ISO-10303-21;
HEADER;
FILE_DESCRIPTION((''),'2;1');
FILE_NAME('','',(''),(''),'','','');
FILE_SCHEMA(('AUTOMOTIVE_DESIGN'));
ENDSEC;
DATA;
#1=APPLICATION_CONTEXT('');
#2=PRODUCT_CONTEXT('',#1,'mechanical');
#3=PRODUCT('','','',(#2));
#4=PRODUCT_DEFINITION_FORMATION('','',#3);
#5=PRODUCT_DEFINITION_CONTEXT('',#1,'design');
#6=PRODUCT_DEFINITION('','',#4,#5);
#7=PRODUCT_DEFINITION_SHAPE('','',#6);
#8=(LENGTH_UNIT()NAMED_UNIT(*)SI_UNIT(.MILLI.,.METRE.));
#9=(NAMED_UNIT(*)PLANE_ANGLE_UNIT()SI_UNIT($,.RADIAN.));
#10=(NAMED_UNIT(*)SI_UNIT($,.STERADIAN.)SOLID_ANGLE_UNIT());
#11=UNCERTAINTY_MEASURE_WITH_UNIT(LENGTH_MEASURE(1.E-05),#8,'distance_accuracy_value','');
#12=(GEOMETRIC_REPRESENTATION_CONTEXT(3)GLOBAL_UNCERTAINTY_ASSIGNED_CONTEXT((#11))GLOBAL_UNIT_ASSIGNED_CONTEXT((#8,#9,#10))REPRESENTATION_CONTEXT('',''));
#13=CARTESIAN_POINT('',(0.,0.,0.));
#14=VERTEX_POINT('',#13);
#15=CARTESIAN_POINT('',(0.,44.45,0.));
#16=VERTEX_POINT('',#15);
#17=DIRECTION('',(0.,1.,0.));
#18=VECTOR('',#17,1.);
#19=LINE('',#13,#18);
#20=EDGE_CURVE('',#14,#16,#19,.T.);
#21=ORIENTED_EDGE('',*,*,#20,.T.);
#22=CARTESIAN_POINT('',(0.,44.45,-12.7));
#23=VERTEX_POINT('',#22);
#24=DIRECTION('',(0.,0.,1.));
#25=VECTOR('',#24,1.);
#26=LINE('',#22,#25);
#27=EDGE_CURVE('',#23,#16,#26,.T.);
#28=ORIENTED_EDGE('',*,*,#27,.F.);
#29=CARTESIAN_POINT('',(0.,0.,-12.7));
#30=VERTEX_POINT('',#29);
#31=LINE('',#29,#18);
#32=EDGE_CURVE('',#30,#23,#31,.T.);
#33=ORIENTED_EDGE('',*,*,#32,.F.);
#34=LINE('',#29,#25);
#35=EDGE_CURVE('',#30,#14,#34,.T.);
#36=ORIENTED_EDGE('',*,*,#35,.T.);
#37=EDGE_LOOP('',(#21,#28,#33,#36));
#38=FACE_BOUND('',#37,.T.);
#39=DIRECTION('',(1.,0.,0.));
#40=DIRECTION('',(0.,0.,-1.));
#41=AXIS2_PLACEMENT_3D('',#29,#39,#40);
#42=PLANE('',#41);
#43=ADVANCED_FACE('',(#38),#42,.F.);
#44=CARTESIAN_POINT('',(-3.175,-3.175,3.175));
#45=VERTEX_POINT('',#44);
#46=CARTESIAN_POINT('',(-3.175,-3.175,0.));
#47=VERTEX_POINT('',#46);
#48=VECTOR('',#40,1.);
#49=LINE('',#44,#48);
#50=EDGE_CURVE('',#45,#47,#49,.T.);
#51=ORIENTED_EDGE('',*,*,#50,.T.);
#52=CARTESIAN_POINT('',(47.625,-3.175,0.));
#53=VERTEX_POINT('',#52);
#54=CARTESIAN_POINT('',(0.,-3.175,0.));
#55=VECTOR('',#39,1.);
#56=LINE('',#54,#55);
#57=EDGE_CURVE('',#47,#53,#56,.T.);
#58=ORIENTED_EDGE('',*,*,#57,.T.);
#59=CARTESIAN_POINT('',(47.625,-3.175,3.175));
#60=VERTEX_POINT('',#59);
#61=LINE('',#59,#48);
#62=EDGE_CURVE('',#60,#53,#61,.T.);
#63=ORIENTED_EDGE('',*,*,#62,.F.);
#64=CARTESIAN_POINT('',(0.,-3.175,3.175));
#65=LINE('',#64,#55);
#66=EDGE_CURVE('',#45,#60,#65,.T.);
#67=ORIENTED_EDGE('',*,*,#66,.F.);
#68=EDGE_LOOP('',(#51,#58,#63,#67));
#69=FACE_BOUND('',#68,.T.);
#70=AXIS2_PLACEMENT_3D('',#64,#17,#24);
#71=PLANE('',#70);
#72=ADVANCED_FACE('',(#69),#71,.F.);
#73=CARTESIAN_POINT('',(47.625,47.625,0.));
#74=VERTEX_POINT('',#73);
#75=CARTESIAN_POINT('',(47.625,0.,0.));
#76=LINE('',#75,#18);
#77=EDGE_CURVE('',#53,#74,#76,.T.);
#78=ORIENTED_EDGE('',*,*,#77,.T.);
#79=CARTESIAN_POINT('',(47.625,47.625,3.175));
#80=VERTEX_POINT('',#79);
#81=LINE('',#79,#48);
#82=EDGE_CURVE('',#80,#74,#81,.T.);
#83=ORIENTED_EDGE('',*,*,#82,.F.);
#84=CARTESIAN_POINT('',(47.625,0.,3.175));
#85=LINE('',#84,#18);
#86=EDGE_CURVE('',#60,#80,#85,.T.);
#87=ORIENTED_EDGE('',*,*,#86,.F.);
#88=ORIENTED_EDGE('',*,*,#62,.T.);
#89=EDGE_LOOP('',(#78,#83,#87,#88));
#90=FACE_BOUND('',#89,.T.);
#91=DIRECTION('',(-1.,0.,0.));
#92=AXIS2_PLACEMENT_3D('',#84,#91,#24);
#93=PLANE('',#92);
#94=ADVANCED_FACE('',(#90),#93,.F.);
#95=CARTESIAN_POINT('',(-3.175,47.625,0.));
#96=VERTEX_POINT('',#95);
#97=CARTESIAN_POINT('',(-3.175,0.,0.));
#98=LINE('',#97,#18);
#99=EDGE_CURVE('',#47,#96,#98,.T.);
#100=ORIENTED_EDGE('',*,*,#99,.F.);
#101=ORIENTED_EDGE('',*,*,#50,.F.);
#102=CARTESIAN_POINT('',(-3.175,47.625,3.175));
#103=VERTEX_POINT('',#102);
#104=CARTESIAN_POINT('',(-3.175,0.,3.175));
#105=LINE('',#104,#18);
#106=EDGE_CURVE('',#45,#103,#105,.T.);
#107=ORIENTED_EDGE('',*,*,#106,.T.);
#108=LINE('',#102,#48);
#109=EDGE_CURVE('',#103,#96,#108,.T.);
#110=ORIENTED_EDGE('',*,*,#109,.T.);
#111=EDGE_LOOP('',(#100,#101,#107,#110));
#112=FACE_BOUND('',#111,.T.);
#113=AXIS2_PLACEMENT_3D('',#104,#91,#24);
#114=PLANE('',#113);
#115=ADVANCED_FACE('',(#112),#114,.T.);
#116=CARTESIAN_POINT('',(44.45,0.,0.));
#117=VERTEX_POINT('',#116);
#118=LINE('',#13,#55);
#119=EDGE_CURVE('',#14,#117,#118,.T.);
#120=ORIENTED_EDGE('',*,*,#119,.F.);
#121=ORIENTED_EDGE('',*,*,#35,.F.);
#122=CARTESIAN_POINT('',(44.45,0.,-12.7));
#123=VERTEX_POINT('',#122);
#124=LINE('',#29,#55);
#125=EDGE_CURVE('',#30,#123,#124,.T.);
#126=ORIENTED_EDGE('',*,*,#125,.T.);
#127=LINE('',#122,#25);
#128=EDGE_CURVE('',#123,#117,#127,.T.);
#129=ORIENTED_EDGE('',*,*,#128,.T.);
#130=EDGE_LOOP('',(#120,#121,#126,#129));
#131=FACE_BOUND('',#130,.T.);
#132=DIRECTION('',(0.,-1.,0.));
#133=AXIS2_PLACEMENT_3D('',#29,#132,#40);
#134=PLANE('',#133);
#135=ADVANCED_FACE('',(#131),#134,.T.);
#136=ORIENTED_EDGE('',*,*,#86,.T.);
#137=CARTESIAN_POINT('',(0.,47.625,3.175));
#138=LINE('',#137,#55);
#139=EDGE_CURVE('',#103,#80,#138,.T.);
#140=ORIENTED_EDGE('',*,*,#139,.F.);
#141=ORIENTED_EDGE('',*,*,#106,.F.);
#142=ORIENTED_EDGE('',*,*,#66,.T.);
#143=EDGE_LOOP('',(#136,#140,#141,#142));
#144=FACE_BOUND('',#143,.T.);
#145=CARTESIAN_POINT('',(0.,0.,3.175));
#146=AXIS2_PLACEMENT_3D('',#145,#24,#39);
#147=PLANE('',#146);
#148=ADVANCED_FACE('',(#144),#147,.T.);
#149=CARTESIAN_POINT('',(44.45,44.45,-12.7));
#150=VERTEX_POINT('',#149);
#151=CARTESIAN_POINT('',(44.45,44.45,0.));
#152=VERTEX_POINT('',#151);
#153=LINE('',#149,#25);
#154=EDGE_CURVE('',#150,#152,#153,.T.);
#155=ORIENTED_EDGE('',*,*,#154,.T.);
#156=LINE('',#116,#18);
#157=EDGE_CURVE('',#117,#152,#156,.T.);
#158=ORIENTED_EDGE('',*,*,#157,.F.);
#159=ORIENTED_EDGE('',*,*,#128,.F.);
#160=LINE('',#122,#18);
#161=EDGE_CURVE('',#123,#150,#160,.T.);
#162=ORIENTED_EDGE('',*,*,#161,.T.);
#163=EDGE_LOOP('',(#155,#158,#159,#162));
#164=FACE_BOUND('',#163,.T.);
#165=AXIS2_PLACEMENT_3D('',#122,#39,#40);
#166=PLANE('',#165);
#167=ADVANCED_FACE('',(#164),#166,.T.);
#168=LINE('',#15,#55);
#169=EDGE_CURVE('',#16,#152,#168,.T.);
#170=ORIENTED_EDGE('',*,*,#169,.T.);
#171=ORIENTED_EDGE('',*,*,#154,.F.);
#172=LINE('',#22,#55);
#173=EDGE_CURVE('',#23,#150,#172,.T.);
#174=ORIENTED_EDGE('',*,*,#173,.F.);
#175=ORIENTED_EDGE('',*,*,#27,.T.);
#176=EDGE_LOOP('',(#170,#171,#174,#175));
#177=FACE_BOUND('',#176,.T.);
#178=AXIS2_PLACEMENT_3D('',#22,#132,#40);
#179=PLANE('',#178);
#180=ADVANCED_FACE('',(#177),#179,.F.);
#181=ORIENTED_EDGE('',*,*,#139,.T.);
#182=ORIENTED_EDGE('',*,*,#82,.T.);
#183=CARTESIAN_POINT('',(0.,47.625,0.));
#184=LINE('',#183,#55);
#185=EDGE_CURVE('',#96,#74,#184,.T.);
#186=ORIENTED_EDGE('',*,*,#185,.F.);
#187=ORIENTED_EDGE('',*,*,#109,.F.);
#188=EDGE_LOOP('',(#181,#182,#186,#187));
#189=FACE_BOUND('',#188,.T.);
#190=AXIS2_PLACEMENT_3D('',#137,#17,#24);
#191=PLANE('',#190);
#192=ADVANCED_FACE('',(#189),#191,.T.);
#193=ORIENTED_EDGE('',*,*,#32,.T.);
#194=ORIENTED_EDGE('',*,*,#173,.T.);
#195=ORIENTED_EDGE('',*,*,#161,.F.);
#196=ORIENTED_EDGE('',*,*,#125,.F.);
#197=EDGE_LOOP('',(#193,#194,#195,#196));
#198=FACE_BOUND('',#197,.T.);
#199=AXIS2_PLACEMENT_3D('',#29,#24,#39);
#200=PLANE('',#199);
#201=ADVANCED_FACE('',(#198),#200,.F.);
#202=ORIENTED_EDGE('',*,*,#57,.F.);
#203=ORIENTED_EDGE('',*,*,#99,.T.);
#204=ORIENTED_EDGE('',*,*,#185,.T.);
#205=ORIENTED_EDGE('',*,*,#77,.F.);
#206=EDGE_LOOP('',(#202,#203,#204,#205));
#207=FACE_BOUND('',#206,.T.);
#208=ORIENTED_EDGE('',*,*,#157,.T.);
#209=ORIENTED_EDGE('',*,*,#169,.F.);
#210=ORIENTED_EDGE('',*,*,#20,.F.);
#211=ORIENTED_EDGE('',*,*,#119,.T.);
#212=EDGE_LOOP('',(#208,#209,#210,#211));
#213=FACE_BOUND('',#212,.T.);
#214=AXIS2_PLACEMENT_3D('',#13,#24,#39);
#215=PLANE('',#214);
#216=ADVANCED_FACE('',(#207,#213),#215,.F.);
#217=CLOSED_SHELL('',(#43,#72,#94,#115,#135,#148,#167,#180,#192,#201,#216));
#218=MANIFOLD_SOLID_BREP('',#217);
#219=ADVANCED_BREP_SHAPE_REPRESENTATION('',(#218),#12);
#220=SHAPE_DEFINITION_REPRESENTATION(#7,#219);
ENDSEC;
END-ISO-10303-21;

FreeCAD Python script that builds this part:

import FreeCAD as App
import Part
import Sketcher
from FreeCAD import Vector
Q = App.Units.Quantity

doc = App.newDocument("Part")
params = doc.addObject("Spreadsheet::Sheet", "Params")
for row, (alias, value) in enumerate([
    ("sketch1_width", "2 in"),
    ("pad1_length", "0.125 in"),
    ("sketch2_width", "1.75 in"),
    ("pad2_length", "0.5 in"),
], start=1):
    params.set(f"A{row}", alias)
    params.set(f"B{row}", "=" + value)
    params.setAlias(f"B{row}", alias)

body = doc.addObject("PartDesign::Body", "Body")

# Sketch on XY plane
sketch1 = doc.addObject("Sketcher::SketchObject", "Sketch")
body.addObject(sketch1)
sketch1.AttachmentSupport = (doc.XY_Plane, [""])
sketch1.MapMode = "FlatFace"
sketch1.addGeometry(Part.LineSegment(Vector(-3, 48, 0), Vector(-3, -3, 0)), False)
sketch1.addGeometry(Part.LineSegment(Vector(-3, -3, 0), Vector(48, -3, 0)), False)
sketch1.addGeometry(Part.LineSegment(Vector(48, -3, 0), Vector(48, 48, 0)), False)
sketch1.addGeometry(Part.LineSegment(Vector(48, 48, 0), Vector(-3, 48, 0)), False)
sketch1.addConstraint(Sketcher.Constraint("Coincident", 0, 2, 1, 1))
sketch1.addConstraint(Sketcher.Constraint("Coincident", 1, 2, 2, 1))
sketch1.addConstraint(Sketcher.Constraint("Coincident", 2, 2, 3, 1))
sketch1.addConstraint(Sketcher.Constraint("Coincident", 3, 2, 0, 1))
sketch1.addConstraint(Sketcher.Constraint("Vertical", 0))
sketch1.addConstraint(Sketcher.Constraint("Horizontal", 1))
sketch1.addConstraint(Sketcher.Constraint("Vertical", 2))
sketch1.addConstraint(Sketcher.Constraint("Horizontal", 3))
sketch1.addConstraint(Sketcher.Constraint("Equal", 3, 0))
sketch1.addConstraint(Sketcher.Constraint("DistanceX", 1, 1, 1, 2, Q("2 in")))
sketch1.addConstraint(Sketcher.Constraint("DistanceX", 0, 2, -1, 1, Q("0.125 in")))
sketch1.addConstraint(Sketcher.Constraint("DistanceY", 0, 2, -1, 1, Q("0.125 in")))
sketch1.setExpression("Constraints[9]", "Params.sketch1_width")
pad1 = doc.addObject("PartDesign::Pad", "Pad")
body.addObject(pad1)
pad1.Profile = sketch1
pad1.setExpression("Length", "Params.pad1_length")

# Sketch on XY plane
sketch2 = doc.addObject("Sketcher::SketchObject", "Sketch001")
body.addObject(sketch2)
sketch2.AttachmentSupport = (doc.XY_Plane, [""])
sketch2.MapMode = "FlatFace"
sketch2.addGeometry(Part.LineSegment(Vector(0, 44, 0), Vector(0, 0, 0)), False)
sketch2.addGeometry(Part.LineSegment(Vector(0, 0, 0), Vector(44, 0, 0)), False)
sketch2.addGeometry(Part.LineSegment(Vector(44, 0, 0), Vector(44, 44, 0)), False)
sketch2.addGeometry(Part.LineSegment(Vector(44, 44, 0), Vector(0, 44, 0)), False)
sketch2.addConstraint(Sketcher.Constraint("Coincident", 0, 2, 1, 1))
sketch2.addConstraint(Sketcher.Constraint("Coincident", 1, 2, 2, 1))
sketch2.addConstraint(Sketcher.Constraint("Coincident", 2, 2, 3, 1))
sketch2.addConstraint(Sketcher.Constraint("Coincident", 3, 2, 0, 1))
sketch2.addConstraint(Sketcher.Constraint("Vertical", 0))
sketch2.addConstraint(Sketcher.Constraint("Horizontal", 1))
sketch2.addConstraint(Sketcher.Constraint("Vertical", 2))
sketch2.addConstraint(Sketcher.Constraint("Horizontal", 3))
sketch2.addConstraint(Sketcher.Constraint("Coincident", 0, 2, -1, 1))
sketch2.addConstraint(Sketcher.Constraint("Equal", 3, 0))
sketch2.addConstraint(Sketcher.Constraint("DistanceX", 1, 1, 1, 2, Q("1.75 in")))
sketch2.setExpression("Constraints[10]", "Params.sketch2_width")
pad2 = doc.addObject("PartDesign::Pad", "Pad001")
body.addObject(pad2)
pad2.Profile = sketch2
pad2.setExpression("Length", "Params.pad2_length")
pad2.Reversed = True

doc.recompute()
